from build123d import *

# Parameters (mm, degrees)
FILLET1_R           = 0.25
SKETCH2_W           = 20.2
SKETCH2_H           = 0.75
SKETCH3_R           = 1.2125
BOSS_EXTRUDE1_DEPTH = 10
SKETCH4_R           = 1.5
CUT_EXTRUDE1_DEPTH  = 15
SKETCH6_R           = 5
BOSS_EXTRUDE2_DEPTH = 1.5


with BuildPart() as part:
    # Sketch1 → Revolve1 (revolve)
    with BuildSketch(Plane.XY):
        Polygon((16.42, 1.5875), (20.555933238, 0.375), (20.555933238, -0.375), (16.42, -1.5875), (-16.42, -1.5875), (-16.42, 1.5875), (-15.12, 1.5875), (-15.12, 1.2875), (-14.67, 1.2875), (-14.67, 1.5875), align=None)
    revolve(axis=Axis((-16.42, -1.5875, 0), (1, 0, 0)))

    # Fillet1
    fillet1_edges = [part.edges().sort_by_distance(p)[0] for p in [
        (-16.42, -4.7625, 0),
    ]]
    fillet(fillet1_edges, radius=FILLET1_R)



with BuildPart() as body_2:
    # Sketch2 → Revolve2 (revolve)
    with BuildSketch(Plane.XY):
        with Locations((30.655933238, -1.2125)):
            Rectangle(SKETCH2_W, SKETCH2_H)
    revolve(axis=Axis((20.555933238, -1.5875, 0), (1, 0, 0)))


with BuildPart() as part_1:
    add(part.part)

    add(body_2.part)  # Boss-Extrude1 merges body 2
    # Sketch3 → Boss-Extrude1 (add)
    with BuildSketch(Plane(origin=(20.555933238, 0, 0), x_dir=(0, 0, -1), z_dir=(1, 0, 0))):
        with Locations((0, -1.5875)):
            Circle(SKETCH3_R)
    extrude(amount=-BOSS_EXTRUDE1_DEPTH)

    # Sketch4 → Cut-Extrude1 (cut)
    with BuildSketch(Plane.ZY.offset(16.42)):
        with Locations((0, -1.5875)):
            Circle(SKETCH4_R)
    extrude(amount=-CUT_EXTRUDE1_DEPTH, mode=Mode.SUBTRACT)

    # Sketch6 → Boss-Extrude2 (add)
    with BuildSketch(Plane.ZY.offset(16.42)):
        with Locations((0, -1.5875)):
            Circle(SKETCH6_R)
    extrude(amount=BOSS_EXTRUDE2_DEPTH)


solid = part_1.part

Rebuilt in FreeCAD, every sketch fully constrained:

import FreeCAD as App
import Part
import Sketcher
Q = App.Units.Quantity


def edges_at(feature, points):
    """Names of the edges that pass closest to the given points."""
    edges = feature.Shape.Edges
    near = lambda p: min(range(len(edges)), key=lambda i: edges[i].distToShape(Part.Vertex(*p))[0])
    return sorted({f"Edge{near(p) + 1}" for p in points})


def add_polygon(sketch, points):
    """Adds a closed chain of lines whose ends are joined by coincident constraints."""
    first, n = sketch.GeometryCount, len(points)
    for a, b in zip(points, points[1:] + points[:1]):
        sketch.addGeometry(Part.LineSegment(App.Vector(*a, 0), App.Vector(*b, 0)), False)
    for i in range(n):
        sketch.addConstraint(Sketcher.Constraint("Coincident", first + i, 2, first + (i + 1) % n, 1))

doc = App.newDocument("Part")
params = doc.addObject("Spreadsheet::Sheet", "Params")
for row, (alias, value) in enumerate([
    ("sketch1_width", "1.3 mm"),
    ("sketch1_height", "0.3 mm"),
    ("sketch1_width2", "31.09 mm"),
    ("sketch1_width3", "0.45 mm"),
    ("sketch1_height2", "0.75 mm"),
    ("revolution_angle", "360 deg"),
    ("fillet_radius", "0.25 mm"),
    ("sketch2_width", "20.2 mm"),
    ("sketch2_height", "0.75 mm"),
    ("revolution2_angle", "360 deg"),
    ("pad1_length", "10 mm"),
    ("sketch4_diameter", "3 mm"),
    ("pocket1_length", "15 mm"),
    ("sketch5_diameter", "10 mm"),
    ("pad2_length", "1.5 mm"),
], start=1):
    params.set(f"A{row}", alias)
    params.set(f"B{row}", "=" + value)
    params.setAlias(f"B{row}", alias)

body = doc.addObject("PartDesign::Body", "Body")

# Sketch on XY plane
sketch1 = doc.addObject("Sketcher::SketchObject", "Sketch")
body.addObject(sketch1)
sketch1.AttachmentSupport = (doc.XY_Plane, [""])
sketch1.MapMode = "FlatFace"
add_polygon(sketch1, [(20.56, 0.38), (16.42, 1.59), (-14.67, 1.59), (-14.67, 1.29), (-15.12, 1.29), (-15.12, 1.59), (-16.42, 1.59), (-16.42, -1.59), (16.42, -1.59), (20.56, -0.38)])  # lines 0-9
sketch1.addGeometry(Part.LineSegment(App.Vector(-16.42, -1.59, 0), App.Vector(20.56, -1.59, 0)), True)  # axis
sketch1.addConstraint([
    Sketcher.Constraint("Horizontal", 1),
    Sketcher.Constraint("Vertical", 2),
    Sketcher.Constraint("Horizontal", 3),
    Sketcher.Constraint("Vertical", 4),
    Sketcher.Constraint("Horizontal", 5),
    Sketcher.Constraint("Vertical", 6),
    Sketcher.Constraint("Horizontal", 7),
    Sketcher.Constraint("Vertical", 9),
    Sketcher.Constraint("Horizontal", 10),
    Sketcher.Constraint("Coincident", 10, 1, 6, 2),
    Sketcher.Constraint("Symmetric", 0, 2, 6, 2, -1, 1),
    Sketcher.Constraint("Symmetric", 5, 2, 7, 2, -1, 1),
    Sketcher.Constraint("Vertical", 9, 2, 10, 2),
    Sketcher.Constraint("Equal", 0, 8),
    Sketcher.Constraint("DistanceX", 5, 2, 5, 1, Q("1.3 mm")),
    Sketcher.Constraint("DistanceY", 2, 2, 2, 1, Q("0.3 mm")),
    Sketcher.Constraint("DistanceX", 1, 2, 1, 1, Q("31.09 mm")),
    Sketcher.Constraint("DistanceX", 3, 2, 3, 1, Q("0.45 mm")),
    Sketcher.Constraint("DistanceY", 9, 1, 9, 2, Q("0.75 mm")),
    Sketcher.Constraint("Distance", 0, Q("4.31 mm")),
    Sketcher.Constraint("DistanceY", 6, 2, 6, 1, Q("3.175 mm")),
])
sketch1.setExpression("Constraints[24]", "Params.sketch1_width")
sketch1.setExpression("Constraints[25]", "Params.sketch1_height")
sketch1.setExpression("Constraints[26]", "Params.sketch1_width2")
sketch1.setExpression("Constraints[27]", "Params.sketch1_width3")
sketch1.setExpression("Constraints[28]", "Params.sketch1_height2")
revolution = doc.addObject("PartDesign::Revolution", "Revolution")
body.addObject(revolution)
revolution.Profile = sketch1
revolution.ReferenceAxis = (sketch1, ["Axis0"])
revolution.setExpression("Angle", "Params.revolution_angle")
doc.recompute()

fillet = doc.addObject("PartDesign::Fillet", "Fillet")
body.addObject(fillet)
fillet.Base = (revolution, edges_at(revolution, [(-16.42, -4.763, 0)]))
fillet.setExpression("Radius", "Params.fillet_radius")
body2 = doc.addObject("PartDesign::Body", "Body001")

# Sketch on XY plane
sketch2 = doc.addObject("Sketcher::SketchObject", "Sketch001")
body2.addObject(sketch2)
sketch2.AttachmentSupport = (doc.getObject("XY_Plane001"), [""])
sketch2.MapMode = "FlatFace"
add_polygon(sketch2, [(20.6, -0.8), (20.6, -1.6), (40.8, -1.6), (40.8, -0.8)])  # lines 0-3
sketch2.addGeometry(Part.LineSegment(App.Vector(20.6, -1.6, 0), App.Vector(40.8, -1.6, 0)), True)  # axis
sketch2.addConstraint([
    Sketcher.Constraint("Vertical", 0),
    Sketcher.Constraint("Horizontal", 1),
    Sketcher.Constraint("Vertical", 2),
    Sketcher.Constraint("Horizontal", 3),
    Sketcher.Constraint("Horizontal", 4),
    Sketcher.Constraint("Coincident", 4, 1, 0, 2),
    Sketcher.Constraint("Vertical", 2, 2, 4, 2),
    Sketcher.Constraint("DistanceX", 1, 1, 1, 2, Q("20.2 mm")),
    Sketcher.Constraint("DistanceY", 0, 2, 0, 1, Q("0.75 mm")),
    Sketcher.Constraint("DistanceY", 0, 2, -1, 1, Q("1.5875 mm")),
    Sketcher.Constraint("DistanceX", -1, 1, 0, 2, Q("20.555933 mm")),
])
sketch2.setExpression("Constraints[11]", "Params.sketch2_width")
sketch2.setExpression("Constraints[12]", "Params.sketch2_height")
revolution2 = doc.addObject("PartDesign::Revolution", "Revolution001")
body2.addObject(revolution2)
revolution2.Profile = sketch2
revolution2.ReferenceAxis = (sketch2, ["Axis0"])
revolution2.setExpression("Angle", "Params.revolution2_angle")
body.AllowCompound = True
doc.recompute()

boolean = doc.addObject("PartDesign::Boolean", "Boolean")
body.addObject(boolean)
boolean.Type = "Fuse"
boolean.addObjects([body2])

# Sketch on YZ plane
sketch3 = doc.addObject("Sketcher::SketchObject", "Sketch002")
body.addObject(sketch3)
sketch3.AttachmentSupport = (doc.YZ_Plane, [""])
sketch3.MapMode = "FlatFace"
sketch3.AttachmentOffset = App.Placement(App.Vector(0, 0, 20.555933), App.Rotation())
sketch3.addGeometry(Part.Circle(App.Vector(-1.6, 0, 0), App.Vector(0, 0, 1), 1.2), False)
sketch3.addConstraint([
    Sketcher.Constraint("PointOnObject", 0, 3, -1),
    Sketcher.Constraint("Diameter", 0, Q("2.425 mm")),
    Sketcher.Constraint("DistanceX", 0, 3, -1, 1, Q("1.5875 mm")),
])
pad1 = doc.addObject("PartDesign::Pad", "Pad")
body.addObject(pad1)
pad1.Profile = sketch3
pad1.setExpression("Length", "Params.pad1_length")
pad1.Reversed = True

# Sketch on YZ plane
sketch4 = doc.addObject("Sketcher::SketchObject", "Sketch003")
body.addObject(sketch4)
sketch4.AttachmentSupport = (doc.YZ_Plane, [""])
sketch4.MapMode = "FlatFace"
sketch4.AttachmentOffset = App.Placement(App.Vector(0, 0, -16.42), App.Rotation())
sketch4.addGeometry(Part.Circle(App.Vector(-1.6, 0, 0), App.Vector(0, 0, 1), 1.5), False)
sketch4.addConstraint([
    Sketcher.Constraint("PointOnObject", 0, 3, -1),
    Sketcher.Constraint("Diameter", 0, Q("3 mm")),
    Sketcher.Constraint("DistanceX", 0, 3, -1, 1, Q("1.5875 mm")),
])
sketch4.setExpression("Constraints[1]", "Params.sketch4_diameter")
pocket1 = doc.addObject("PartDesign::Pocket", "Pocket")
body.addObject(pocket1)
pocket1.Profile = sketch4
pocket1.setExpression("Length", "Params.pocket1_length")
pocket1.Reversed = True

# Sketch on YZ plane
sketch5 = doc.addObject("Sketcher::SketchObject", "Sketch004")
body.addObject(sketch5)
sketch5.AttachmentSupport = (doc.YZ_Plane, [""])
sketch5.MapMode = "FlatFace"
sketch5.AttachmentOffset = App.Placement(App.Vector(0, 0, -16.42), App.Rotation())
sketch5.addGeometry(Part.Circle(App.Vector(-2, 0, 0), App.Vector(0, 0, 1), 5), False)
sketch5.addConstraint([
    Sketcher.Constraint("PointOnObject", 0, 3, -1),
    Sketcher.Constraint("Diameter", 0, Q("10 mm")),
    Sketcher.Constraint("DistanceX", 0, 3, -1, 1, Q("1.5875 mm")),
])
sketch5.setExpression("Constraints[1]", "Params.sketch5_diameter")
pad2 = doc.addObject("PartDesign::Pad", "Pad001")
body.addObject(pad2)
pad2.Profile = sketch5
pad2.setExpression("Length", "Params.pad2_length")
pad2.Reversed = True

doc.recompute()
